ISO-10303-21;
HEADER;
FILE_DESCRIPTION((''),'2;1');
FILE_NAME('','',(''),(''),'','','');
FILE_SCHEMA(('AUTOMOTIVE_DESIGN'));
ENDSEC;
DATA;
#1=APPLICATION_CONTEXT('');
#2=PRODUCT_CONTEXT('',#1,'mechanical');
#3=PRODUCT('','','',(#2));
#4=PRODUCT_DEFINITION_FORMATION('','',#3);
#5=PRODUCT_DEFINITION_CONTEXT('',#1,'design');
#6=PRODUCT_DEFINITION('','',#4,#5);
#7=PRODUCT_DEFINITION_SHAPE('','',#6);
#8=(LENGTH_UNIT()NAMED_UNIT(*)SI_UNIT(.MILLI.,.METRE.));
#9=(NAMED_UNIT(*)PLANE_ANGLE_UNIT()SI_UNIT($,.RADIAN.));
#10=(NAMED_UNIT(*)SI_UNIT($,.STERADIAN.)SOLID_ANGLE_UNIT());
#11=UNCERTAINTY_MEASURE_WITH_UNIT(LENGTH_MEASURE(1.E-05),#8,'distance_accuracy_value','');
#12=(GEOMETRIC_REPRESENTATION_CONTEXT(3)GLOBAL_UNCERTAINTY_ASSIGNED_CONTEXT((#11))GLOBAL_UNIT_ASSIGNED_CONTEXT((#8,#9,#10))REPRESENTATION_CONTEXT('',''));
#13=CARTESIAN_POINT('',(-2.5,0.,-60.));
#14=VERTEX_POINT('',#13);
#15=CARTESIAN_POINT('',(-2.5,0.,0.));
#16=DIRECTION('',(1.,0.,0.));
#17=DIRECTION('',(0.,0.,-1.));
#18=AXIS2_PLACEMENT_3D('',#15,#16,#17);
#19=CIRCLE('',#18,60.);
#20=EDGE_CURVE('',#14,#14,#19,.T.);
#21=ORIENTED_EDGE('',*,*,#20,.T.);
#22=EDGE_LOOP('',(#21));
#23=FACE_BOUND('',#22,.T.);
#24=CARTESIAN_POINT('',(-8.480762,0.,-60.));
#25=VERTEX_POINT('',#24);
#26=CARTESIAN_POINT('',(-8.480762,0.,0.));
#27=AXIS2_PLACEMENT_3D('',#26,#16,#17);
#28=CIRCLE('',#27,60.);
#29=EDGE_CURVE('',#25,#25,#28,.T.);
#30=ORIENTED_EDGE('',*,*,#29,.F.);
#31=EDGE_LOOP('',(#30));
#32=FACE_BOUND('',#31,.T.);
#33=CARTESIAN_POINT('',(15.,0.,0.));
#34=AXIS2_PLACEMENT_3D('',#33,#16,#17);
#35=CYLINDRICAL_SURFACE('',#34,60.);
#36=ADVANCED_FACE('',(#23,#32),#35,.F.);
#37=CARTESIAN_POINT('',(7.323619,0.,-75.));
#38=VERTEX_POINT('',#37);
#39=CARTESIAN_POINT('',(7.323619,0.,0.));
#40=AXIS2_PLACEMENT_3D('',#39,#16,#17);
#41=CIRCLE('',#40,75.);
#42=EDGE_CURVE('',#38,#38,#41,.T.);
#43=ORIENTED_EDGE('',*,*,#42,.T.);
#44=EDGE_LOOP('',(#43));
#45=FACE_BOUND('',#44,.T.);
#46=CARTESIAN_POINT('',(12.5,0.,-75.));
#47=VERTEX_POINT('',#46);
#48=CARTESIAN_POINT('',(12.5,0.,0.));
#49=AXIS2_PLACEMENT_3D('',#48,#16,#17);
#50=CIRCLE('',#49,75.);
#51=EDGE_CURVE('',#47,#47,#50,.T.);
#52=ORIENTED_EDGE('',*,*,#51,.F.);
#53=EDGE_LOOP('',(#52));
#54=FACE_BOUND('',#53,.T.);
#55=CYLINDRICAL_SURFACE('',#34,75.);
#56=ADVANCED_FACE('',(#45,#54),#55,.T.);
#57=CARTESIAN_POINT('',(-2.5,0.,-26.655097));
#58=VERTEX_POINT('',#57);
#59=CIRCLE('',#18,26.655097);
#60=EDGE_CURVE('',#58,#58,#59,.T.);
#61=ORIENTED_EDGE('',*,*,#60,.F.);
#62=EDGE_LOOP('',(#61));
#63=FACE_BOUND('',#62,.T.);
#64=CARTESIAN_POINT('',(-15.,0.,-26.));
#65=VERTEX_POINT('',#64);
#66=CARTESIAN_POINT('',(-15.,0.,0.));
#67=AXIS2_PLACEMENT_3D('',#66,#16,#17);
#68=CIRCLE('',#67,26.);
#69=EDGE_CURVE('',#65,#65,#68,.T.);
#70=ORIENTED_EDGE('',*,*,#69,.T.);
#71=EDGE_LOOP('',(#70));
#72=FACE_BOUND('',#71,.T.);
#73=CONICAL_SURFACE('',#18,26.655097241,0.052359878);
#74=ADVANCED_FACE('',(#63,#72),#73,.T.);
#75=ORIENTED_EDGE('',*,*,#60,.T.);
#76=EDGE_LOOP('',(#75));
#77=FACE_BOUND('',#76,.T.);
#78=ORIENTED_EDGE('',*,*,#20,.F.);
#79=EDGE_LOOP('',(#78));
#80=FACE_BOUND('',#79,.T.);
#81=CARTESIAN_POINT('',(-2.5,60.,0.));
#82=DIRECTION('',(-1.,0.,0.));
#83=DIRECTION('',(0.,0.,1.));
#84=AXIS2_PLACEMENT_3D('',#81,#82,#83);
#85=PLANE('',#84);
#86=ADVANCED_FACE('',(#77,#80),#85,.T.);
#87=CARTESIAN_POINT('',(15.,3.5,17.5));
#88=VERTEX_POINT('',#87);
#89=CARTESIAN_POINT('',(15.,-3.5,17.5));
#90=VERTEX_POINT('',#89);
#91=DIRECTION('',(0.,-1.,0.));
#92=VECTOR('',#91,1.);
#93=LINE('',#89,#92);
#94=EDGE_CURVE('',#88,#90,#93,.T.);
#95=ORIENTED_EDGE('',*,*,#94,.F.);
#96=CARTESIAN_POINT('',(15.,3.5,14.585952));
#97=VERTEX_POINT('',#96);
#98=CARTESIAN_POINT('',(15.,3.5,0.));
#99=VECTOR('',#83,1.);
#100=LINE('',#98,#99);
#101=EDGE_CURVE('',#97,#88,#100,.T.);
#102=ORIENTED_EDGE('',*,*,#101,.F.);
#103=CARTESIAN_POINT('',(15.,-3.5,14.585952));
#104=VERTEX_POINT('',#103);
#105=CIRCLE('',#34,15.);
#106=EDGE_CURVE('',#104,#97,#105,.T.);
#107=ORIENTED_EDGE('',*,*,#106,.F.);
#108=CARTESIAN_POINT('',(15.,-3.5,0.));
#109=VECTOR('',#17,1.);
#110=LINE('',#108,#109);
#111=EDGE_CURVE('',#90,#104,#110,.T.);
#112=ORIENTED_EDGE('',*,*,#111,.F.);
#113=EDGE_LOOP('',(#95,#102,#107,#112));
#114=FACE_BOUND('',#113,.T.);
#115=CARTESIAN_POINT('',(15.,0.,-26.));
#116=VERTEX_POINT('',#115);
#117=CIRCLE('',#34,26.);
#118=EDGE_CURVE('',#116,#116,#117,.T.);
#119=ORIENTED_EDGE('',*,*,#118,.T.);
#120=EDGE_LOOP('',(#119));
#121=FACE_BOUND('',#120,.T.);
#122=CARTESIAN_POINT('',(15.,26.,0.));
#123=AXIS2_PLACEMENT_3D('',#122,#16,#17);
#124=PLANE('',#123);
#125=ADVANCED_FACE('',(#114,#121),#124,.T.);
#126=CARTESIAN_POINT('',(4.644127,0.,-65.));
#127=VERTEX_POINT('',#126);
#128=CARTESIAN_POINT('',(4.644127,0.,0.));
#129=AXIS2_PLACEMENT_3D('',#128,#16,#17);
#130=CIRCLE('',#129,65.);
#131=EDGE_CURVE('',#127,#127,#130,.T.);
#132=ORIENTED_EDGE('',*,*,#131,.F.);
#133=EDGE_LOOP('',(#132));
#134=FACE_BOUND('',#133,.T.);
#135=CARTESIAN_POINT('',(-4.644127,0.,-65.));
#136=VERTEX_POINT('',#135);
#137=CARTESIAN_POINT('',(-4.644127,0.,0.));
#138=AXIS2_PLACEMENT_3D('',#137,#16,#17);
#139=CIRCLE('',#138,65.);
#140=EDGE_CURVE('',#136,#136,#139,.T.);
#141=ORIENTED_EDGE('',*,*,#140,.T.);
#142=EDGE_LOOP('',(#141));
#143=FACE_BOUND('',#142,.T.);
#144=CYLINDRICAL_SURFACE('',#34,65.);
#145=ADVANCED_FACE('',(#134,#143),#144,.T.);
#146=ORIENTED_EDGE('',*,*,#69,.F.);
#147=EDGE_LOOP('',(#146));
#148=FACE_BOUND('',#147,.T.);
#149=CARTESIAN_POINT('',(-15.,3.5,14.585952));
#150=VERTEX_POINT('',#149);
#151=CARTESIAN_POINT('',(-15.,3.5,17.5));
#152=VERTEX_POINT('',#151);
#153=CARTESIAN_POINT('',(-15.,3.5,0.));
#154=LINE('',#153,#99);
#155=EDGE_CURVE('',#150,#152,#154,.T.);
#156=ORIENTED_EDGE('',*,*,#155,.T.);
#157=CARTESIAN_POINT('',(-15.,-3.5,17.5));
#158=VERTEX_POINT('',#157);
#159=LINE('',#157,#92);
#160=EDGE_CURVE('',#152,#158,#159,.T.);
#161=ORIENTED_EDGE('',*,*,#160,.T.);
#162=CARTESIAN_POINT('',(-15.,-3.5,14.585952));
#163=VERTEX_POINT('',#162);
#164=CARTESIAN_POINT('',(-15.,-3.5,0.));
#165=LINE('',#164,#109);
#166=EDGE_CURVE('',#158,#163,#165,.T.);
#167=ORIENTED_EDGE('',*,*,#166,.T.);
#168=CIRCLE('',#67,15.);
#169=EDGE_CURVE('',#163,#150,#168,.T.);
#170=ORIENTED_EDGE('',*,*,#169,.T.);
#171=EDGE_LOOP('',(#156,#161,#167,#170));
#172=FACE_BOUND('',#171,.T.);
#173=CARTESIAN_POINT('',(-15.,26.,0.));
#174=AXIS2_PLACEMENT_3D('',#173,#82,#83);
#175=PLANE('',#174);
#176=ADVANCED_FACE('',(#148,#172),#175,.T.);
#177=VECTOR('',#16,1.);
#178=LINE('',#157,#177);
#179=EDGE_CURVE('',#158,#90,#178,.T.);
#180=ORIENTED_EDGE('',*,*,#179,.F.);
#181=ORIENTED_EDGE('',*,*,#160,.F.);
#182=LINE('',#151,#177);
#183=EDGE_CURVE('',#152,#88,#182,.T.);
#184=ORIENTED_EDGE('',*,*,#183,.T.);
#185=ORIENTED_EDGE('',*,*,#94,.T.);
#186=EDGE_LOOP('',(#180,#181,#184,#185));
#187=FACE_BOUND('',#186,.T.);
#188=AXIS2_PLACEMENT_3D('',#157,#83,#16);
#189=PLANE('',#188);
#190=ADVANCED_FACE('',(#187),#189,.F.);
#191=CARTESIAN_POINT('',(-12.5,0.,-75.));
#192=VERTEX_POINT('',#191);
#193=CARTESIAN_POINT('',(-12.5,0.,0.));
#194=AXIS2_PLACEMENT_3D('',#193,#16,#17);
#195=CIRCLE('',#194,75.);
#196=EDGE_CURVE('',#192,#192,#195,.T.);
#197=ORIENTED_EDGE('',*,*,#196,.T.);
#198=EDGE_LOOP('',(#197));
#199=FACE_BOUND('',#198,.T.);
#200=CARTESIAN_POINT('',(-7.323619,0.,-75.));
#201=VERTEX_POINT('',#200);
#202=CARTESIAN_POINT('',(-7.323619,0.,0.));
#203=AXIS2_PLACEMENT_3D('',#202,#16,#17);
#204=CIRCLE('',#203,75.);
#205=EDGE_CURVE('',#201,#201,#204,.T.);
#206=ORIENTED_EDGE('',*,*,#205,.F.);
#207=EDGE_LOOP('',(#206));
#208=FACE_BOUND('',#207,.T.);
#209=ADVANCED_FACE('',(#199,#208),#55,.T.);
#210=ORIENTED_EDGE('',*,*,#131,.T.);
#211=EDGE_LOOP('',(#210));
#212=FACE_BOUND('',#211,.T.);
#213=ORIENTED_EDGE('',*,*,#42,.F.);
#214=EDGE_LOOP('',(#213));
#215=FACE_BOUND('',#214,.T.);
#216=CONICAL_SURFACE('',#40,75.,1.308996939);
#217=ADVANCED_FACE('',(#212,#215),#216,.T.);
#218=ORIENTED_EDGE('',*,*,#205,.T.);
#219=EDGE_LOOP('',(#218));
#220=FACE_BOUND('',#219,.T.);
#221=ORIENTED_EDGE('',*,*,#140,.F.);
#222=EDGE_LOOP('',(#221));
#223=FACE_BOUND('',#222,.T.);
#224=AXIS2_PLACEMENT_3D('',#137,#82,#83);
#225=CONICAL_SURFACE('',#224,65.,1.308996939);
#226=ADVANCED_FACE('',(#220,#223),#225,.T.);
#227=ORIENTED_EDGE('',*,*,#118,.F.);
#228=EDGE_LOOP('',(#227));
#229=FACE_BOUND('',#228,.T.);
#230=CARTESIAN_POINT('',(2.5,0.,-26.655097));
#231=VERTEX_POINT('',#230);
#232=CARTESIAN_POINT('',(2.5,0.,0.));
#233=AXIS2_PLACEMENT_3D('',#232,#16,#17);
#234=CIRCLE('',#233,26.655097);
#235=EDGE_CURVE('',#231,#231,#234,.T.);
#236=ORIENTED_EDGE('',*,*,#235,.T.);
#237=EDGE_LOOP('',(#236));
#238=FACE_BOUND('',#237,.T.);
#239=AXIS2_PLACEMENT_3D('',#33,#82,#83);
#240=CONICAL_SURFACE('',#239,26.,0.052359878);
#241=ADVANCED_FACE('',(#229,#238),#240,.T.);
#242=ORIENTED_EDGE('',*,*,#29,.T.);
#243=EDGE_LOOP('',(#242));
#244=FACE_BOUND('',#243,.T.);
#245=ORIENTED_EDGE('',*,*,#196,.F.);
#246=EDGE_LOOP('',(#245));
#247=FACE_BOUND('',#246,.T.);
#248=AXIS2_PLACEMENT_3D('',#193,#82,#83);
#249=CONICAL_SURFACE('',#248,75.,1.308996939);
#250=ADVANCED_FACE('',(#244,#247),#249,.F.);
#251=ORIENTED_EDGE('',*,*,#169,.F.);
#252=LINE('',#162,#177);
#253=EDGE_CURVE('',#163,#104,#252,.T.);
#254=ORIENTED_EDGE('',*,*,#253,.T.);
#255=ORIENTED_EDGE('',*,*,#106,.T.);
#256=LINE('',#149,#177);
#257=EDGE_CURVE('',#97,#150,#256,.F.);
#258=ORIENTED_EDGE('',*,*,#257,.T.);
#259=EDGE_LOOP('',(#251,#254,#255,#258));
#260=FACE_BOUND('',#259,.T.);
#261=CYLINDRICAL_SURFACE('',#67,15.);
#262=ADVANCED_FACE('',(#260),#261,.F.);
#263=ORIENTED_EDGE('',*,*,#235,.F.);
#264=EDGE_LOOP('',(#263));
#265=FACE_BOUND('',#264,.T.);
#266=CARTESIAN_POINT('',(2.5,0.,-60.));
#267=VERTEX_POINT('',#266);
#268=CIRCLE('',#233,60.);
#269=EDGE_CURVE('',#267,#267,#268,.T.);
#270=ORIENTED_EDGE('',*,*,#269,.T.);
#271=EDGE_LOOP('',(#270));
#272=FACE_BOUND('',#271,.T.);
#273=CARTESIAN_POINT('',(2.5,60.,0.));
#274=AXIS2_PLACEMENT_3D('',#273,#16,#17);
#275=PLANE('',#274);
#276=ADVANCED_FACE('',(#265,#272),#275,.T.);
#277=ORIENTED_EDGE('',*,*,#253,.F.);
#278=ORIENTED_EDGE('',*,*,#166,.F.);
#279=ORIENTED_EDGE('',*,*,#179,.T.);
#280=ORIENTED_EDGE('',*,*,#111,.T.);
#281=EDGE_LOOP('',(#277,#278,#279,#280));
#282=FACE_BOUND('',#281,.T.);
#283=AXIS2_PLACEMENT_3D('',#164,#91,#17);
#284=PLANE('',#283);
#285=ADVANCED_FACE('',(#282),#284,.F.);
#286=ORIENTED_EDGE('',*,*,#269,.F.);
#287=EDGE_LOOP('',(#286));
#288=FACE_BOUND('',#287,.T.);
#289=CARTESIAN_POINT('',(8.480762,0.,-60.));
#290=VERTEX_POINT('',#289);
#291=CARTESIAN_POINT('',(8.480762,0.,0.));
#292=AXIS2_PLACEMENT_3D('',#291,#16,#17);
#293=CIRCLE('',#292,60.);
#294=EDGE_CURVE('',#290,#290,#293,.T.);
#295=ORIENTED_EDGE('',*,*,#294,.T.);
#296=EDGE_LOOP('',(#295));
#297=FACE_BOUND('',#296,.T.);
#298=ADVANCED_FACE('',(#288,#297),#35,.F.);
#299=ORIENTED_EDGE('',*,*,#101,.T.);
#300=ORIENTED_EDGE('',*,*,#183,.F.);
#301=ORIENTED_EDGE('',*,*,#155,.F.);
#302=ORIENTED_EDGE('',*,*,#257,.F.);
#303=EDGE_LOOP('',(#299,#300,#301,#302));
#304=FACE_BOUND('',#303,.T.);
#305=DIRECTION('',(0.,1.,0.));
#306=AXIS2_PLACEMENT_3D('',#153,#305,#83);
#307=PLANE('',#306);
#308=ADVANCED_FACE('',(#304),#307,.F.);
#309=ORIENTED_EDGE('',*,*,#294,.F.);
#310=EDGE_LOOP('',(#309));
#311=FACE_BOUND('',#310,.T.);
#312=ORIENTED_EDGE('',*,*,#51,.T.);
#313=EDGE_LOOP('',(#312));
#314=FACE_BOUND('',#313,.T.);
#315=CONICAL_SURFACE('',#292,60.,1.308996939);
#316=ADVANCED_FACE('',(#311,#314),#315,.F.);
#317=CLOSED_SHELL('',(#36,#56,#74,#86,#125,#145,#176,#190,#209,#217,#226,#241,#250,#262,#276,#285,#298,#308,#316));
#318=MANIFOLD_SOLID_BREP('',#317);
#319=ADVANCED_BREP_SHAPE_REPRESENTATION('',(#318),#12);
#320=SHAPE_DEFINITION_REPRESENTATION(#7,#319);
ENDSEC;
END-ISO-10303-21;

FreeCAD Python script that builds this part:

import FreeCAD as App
import Part
import Sketcher

V = App.Vector
Q = App.Units.Quantity

doc = App.newDocument("Part")
body = doc.addObject("PartDesign::Body", "Body")

# Sketch on XY plane
sketch1 = body.newObject("Sketcher::SketchObject", "Sketch")
sketch1.AttachmentSupport = (doc.getObject("XY_Plane"), [""])
sketch1.MapMode = "FlatFace"
sketch1.addGeometry([
    Part.LineSegment(V(8, 60, 0), V(12, 75, 0)),  # 0
    Part.LineSegment(V(12, 75, 0), V(7, 75, 0)),  # 1
    Part.LineSegment(V(7, 75, 0), V(5, 65, 0)),  # 2
    Part.LineSegment(V(5, 65, 0), V(-5, 65, 0)),  # 3
    Part.LineSegment(V(-5, 65, 0), V(-7, 75, 0)),  # 4
    Part.LineSegment(V(-7, 75, 0), V(-12, 75, 0)),  # 5
    Part.LineSegment(V(-12, 75, 0), V(-8, 60, 0)),  # 6
    Part.LineSegment(V(-8, 60, 0), V(-2, 60, 0)),  # 7
    Part.LineSegment(V(-2, 60, 0), V(-2, 27, 0)),  # 8
    Part.LineSegment(V(-2, 27, 0), V(-15, 26, 0)),  # 9
    Part.LineSegment(V(-15, 26, 0), V(-15, 0, 0)),  # 10
    Part.LineSegment(V(-15, 0, 0), V(15, 0, 0)),  # 11
    Part.LineSegment(V(15, 0, 0), V(15, 26, 0)),  # 12
    Part.LineSegment(V(15, 26, 0), V(2, 27, 0)),  # 13
    Part.LineSegment(V(2, 27, 0), V(2, 60, 0)),  # 14
    Part.LineSegment(V(2, 60, 0), V(8, 60, 0)),  # 15
], False)
sketch1.addConstraint([
    Sketcher.Constraint("Coincident", 0, 2, 1, 1),
    Sketcher.Constraint("Coincident", 1, 2, 2, 1),
    Sketcher.Constraint("Coincident", 2, 2, 3, 1),
    Sketcher.Constraint("Coincident", 3, 2, 4, 1),
    Sketcher.Constraint("Coincident", 4, 2, 5, 1),
    Sketcher.Constraint("Coincident", 5, 2, 6, 1),
    Sketcher.Constraint("Coincident", 6, 2, 7, 1),
    Sketcher.Constraint("Coincident", 7, 2, 8, 1),
    Sketcher.Constraint("Coincident", 8, 2, 9, 1),
    Sketcher.Constraint("Coincident", 9, 2, 10, 1),
    Sketcher.Constraint("Coincident", 10, 2, 11, 1),
    Sketcher.Constraint("Coincident", 11, 2, 12, 1),
    Sketcher.Constraint("Coincident", 12, 2, 13, 1),
    Sketcher.Constraint("Coincident", 13, 2, 14, 1),
    Sketcher.Constraint("Coincident", 14, 2, 15, 1),
    Sketcher.Constraint("Coincident", 15, 2, 0, 1),
    Sketcher.Constraint("Horizontal", 1),
    Sketcher.Constraint("Horizontal", 3),
    Sketcher.Constraint("Horizontal", 5),
    Sketcher.Constraint("Horizontal", 7),
    Sketcher.Constraint("Vertical", 8),
    Sketcher.Constraint("Vertical", 10),
    Sketcher.Constraint("Horizontal", 11),
    Sketcher.Constraint("Vertical", 12),
    Sketcher.Constraint("Vertical", 14),
    Sketcher.Constraint("Horizontal", 15),
    Sketcher.Constraint("Symmetric", 10, 2, 11, 2, -1, 1),
    Sketcher.Constraint("Symmetric", 1, 2, 4, 2, -2),
    Sketcher.Constraint("Symmetric", 8, 2, 13, 2, -2),
    Sketcher.Constraint("Symmetric", 6, 2, 15, 2, -2),
    Sketcher.Constraint("Parallel", 0, 2),
    Sketcher.Constraint("Parallel", 4, 6),
    Sketcher.Constraint("Horizontal", 9, 2, 12, 2),
    Sketcher.Constraint("Equal", 1, 5),
    Sketcher.Constraint("DistanceX", 11, 1, 11, 2, 30.0),
    Sketcher.Constraint("DistanceY", 10, 2, 10, 1, 26.0),
    Sketcher.Constraint("Angle", 0, Q("75 deg")),
    Sketcher.Constraint("Angle", 9, Q("-177 deg")),
    Sketcher.Constraint("DistanceY", -1, 1, 0, 2, 75.0),
    Sketcher.Constraint("DistanceY", -1, 1, 2, 2, 65.0),
    Sketcher.Constraint("DistanceY", -1, 1, 6, 2, 60.0),
    Sketcher.Constraint("DistanceX", 5, 2, 0, 2, 25.0),
    Sketcher.Constraint("DistanceX", 8, 2, 13, 2, 5.0),
    Sketcher.Constraint("DistanceX", 1, 2, 1, 1, 5.176381),
])
revolution = body.newObject("PartDesign::Revolution", "Revolution")
revolution.Profile = sketch1
revolution.ReferenceAxis = (sketch1, ["H_Axis"])
revolution.Angle = 360

# Sketch on YZ plane
sketch2 = body.newObject("Sketcher::SketchObject", "Sketch001")
sketch2.AttachmentSupport = (doc.getObject("YZ_Plane"), [""])
sketch2.MapMode = "FlatFace"
sketch2.addGeometry(Part.Circle(V(0, 0, 0), V(0, 0, 1), 15), False)
sketch2.addConstraint([
    Sketcher.Constraint("Coincident", 0, 3, -1, 1),
    Sketcher.Constraint("Diameter", 0, 30.0),
])
pocket1 = body.newObject("PartDesign::Pocket", "Pocket")
pocket1.Profile = sketch2
pocket1.Type = "ThroughAll"
pocket1.Midplane = True

# Sketch on YZ plane
sketch3 = body.newObject("Sketcher::SketchObject", "Sketch002")
sketch3.AttachmentSupport = (doc.getObject("YZ_Plane"), [""])
sketch3.MapMode = "FlatFace"
sketch3.addGeometry([
    Part.LineSegment(V(4, 18, 0), V(-4, 18, 0)),
    Part.LineSegment(V(-4, 18, 0), V(-4, 0, 0)),
    Part.LineSegment(V(-4, 0, 0), V(4, 0, 0)),
    Part.LineSegment(V(4, 0, 0), V(4, 18, 0)),
], False)
sketch3.addConstraint([
    Sketcher.Constraint("Coincident", 0, 2, 1, 1),
    Sketcher.Constraint("Coincident", 1, 2, 2, 1),
    Sketcher.Constraint("Coincident", 2, 2, 3, 1),
    Sketcher.Constraint("Coincident", 3, 2, 0, 1),
    Sketcher.Constraint("Horizontal", 0),
    Sketcher.Constraint("Vertical", 1),
    Sketcher.Constraint("Horizontal", 2),
    Sketcher.Constraint("Vertical", 3),
    Sketcher.Constraint("Symmetric", 1, 2, 2, 2, -1, 1),
    Sketcher.Constraint("DistanceX", 0, 2, 0, 1, 7.0),
    Sketcher.Constraint("DistanceY", 1, 2, 1, 1, 17.5),
])
pocket2 = body.newObject("PartDesign::Pocket", "Pocket001")
pocket2.Profile = sketch3
pocket2.Type = "ThroughAll"
pocket2.Midplane = True

doc.recompute()
